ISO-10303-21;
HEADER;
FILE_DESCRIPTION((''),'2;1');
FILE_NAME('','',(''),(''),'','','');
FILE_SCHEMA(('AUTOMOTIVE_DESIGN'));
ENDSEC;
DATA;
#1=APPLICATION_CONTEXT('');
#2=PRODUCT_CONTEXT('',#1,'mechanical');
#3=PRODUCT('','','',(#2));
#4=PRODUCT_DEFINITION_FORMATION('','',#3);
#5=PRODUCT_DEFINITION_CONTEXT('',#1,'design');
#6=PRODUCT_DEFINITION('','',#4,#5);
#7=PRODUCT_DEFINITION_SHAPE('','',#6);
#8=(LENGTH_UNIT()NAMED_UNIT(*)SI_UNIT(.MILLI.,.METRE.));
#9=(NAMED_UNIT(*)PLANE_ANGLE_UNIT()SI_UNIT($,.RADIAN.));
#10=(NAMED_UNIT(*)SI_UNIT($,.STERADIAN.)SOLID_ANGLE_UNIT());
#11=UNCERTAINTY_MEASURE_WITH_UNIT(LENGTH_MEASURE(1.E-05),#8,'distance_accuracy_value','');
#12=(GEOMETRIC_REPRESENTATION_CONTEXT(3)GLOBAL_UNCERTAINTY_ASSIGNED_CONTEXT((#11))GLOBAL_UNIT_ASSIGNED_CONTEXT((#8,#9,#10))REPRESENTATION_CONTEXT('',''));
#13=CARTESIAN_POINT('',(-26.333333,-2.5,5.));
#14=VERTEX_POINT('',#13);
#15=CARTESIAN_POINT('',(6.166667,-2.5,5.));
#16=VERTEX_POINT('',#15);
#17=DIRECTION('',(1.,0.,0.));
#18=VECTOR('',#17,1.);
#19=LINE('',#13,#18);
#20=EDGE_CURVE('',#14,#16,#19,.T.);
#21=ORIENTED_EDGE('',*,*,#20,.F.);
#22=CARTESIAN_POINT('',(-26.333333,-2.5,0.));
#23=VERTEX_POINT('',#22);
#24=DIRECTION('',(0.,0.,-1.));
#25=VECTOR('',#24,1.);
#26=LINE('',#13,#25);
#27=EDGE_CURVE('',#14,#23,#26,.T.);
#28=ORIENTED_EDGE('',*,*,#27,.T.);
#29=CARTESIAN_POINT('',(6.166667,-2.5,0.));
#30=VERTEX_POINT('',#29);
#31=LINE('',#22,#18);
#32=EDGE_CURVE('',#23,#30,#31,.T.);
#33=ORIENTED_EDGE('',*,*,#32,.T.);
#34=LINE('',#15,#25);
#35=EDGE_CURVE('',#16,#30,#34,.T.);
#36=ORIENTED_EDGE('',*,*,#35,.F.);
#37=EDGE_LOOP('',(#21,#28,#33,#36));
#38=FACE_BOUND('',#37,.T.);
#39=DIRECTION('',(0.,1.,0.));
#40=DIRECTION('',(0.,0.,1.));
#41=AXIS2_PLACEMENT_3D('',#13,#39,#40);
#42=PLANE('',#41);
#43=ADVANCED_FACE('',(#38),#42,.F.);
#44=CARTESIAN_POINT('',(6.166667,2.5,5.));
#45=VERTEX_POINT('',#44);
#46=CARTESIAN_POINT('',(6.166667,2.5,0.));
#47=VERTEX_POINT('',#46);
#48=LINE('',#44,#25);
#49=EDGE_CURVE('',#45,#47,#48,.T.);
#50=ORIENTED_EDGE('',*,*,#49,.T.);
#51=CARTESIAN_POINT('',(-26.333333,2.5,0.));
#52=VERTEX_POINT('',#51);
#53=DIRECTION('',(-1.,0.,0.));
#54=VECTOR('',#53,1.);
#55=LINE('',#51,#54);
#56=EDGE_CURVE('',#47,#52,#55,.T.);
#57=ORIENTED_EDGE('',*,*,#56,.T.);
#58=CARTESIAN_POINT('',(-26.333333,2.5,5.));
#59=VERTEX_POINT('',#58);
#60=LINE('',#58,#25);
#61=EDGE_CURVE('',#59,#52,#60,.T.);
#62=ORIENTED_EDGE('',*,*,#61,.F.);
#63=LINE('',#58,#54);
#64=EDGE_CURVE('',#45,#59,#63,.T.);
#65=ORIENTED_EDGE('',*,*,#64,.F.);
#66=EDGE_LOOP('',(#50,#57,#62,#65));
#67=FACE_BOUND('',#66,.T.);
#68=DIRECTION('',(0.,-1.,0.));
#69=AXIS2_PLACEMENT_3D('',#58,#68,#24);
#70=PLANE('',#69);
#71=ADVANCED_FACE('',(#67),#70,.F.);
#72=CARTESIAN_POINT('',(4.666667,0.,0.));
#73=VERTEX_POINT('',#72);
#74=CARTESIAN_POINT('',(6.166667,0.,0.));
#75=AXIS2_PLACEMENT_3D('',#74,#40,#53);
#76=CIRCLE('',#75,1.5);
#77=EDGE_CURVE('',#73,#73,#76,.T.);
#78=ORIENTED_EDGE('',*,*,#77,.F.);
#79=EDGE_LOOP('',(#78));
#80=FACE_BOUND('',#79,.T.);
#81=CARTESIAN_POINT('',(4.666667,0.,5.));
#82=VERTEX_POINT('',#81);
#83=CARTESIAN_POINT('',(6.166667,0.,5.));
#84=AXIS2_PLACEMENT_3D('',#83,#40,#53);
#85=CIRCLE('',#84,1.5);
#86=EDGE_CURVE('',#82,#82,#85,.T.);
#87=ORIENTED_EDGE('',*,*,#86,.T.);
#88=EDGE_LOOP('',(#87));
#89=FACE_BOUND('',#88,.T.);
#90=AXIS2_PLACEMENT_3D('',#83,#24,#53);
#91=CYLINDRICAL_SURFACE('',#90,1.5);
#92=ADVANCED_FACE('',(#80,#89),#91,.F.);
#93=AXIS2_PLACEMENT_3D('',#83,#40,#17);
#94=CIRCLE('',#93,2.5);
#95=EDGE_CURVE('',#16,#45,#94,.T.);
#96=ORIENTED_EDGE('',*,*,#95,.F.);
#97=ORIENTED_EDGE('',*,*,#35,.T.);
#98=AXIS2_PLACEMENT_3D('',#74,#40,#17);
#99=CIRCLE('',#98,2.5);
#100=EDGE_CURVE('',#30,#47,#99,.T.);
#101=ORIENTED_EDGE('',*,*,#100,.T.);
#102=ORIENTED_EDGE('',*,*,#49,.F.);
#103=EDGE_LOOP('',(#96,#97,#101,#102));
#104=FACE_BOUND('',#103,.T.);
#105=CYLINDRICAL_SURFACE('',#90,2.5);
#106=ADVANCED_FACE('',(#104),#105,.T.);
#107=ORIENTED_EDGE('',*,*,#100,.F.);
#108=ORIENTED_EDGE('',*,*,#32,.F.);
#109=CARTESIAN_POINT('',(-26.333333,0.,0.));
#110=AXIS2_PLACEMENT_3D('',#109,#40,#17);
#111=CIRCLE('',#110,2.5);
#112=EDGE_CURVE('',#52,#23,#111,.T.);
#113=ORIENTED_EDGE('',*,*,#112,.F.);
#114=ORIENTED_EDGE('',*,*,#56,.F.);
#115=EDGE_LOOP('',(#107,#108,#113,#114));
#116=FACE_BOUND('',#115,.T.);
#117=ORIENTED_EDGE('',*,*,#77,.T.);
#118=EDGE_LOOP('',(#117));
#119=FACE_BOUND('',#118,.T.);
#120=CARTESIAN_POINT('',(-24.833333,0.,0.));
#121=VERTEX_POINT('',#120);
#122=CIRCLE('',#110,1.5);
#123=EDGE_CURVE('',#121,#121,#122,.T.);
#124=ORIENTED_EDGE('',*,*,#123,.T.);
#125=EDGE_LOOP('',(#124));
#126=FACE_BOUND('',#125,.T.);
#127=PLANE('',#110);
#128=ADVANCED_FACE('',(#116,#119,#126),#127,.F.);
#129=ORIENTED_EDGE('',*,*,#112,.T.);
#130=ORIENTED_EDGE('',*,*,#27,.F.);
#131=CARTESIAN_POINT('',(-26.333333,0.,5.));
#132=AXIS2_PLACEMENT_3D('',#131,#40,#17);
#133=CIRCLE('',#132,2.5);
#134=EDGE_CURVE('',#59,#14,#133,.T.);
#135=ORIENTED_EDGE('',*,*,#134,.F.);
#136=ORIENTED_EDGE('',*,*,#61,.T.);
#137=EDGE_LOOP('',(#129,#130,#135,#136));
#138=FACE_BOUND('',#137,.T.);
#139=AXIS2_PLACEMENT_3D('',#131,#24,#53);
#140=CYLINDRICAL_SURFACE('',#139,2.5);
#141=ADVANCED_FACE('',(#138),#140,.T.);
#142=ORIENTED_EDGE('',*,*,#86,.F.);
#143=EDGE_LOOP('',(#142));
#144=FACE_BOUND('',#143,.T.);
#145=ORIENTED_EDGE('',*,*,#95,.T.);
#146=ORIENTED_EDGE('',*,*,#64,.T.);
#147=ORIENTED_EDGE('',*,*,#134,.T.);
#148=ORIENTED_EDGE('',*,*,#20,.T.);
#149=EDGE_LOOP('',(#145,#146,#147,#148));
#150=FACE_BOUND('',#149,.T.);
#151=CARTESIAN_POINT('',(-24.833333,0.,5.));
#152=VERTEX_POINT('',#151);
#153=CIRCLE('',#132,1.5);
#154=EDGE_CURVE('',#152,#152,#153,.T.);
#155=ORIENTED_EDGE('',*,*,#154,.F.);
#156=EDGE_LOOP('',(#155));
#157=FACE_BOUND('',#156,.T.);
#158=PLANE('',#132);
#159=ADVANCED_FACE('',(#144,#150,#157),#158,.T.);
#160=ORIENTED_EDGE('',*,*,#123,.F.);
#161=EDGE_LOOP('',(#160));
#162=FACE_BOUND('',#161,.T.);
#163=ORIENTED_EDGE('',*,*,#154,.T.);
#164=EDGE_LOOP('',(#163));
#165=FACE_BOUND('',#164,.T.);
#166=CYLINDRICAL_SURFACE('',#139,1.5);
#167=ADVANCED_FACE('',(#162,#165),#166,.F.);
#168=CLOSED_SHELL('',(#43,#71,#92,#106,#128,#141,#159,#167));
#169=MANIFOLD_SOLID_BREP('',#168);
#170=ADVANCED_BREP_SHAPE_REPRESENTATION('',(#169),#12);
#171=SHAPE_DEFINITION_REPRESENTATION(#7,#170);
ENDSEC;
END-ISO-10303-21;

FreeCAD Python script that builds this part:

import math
import FreeCAD as App
import Part
import Sketcher
from FreeCAD import Vector
Q = App.Units.Quantity

doc = App.newDocument("Part")
body = doc.addObject("PartDesign::Body", "Body")

sketch1 = body.newObject("Sketcher::SketchObject", "Sketch")
sketch1.AttachmentSupport = (doc.getObject("XY_Plane"), [""])
sketch1.MapMode = "FlatFace"
sketch1.addGeometry([
    Part.LineSegment(Vector(6.2, 2.5, 0), Vector(-26.3, 2.5, 0)),
    Part.ArcOfCircle(Part.Circle(Vector(-26.3, 0, 0), Vector(0, 0, 1), 2.5), math.radians(90), math.radians(270)),
    Part.LineSegment(Vector(-26.3, -2.5, 0), Vector(6.2, -2.5, 0)),
    Part.ArcOfCircle(Part.Circle(Vector(6.2, 0, 0), Vector(0, 0, 1), 2.5), math.radians(-90), math.radians(90)),
    Part.Circle(Vector(6.2, 0, 0), Vector(0, 0, 1), 1.5),
    Part.Circle(Vector(-26.3, 0, 0), Vector(0, 0, 1), 1.5),
], False)
sketch1.addConstraint([
    Sketcher.Constraint("Tangent", 0, 2, 1, 1),
    Sketcher.Constraint("Tangent", 1, 2, 2, 1),
    Sketcher.Constraint("Tangent", 2, 2, 3, 1),
    Sketcher.Constraint("Tangent", 3, 2, 0, 1),
    Sketcher.Constraint("Horizontal", 0),
    Sketcher.Constraint("Horizontal", 2),
    Sketcher.Constraint("Coincident", 4, 3, 3, 3),
    Sketcher.Constraint("Coincident", 5, 3, 1, 3),
    Sketcher.Constraint("Equal", 4, 5),
    Sketcher.Constraint("PointOnObject", 1, 3, -1),
    Sketcher.Constraint("Diameter", 4, Q("3 mm")),
    Sketcher.Constraint("Radius", 1, Q("2.5 mm")),
    Sketcher.Constraint("DistanceX", 0, 2, 0, 1, Q("32.5 mm")),
    Sketcher.Constraint("DistanceX", 1, 3, -1, 1, Q("26.333333 mm")),
])
pad1 = body.newObject("PartDesign::Pad", "Pad")
pad1.Profile = sketch1
pad1.Length = 5

doc.recompute()
